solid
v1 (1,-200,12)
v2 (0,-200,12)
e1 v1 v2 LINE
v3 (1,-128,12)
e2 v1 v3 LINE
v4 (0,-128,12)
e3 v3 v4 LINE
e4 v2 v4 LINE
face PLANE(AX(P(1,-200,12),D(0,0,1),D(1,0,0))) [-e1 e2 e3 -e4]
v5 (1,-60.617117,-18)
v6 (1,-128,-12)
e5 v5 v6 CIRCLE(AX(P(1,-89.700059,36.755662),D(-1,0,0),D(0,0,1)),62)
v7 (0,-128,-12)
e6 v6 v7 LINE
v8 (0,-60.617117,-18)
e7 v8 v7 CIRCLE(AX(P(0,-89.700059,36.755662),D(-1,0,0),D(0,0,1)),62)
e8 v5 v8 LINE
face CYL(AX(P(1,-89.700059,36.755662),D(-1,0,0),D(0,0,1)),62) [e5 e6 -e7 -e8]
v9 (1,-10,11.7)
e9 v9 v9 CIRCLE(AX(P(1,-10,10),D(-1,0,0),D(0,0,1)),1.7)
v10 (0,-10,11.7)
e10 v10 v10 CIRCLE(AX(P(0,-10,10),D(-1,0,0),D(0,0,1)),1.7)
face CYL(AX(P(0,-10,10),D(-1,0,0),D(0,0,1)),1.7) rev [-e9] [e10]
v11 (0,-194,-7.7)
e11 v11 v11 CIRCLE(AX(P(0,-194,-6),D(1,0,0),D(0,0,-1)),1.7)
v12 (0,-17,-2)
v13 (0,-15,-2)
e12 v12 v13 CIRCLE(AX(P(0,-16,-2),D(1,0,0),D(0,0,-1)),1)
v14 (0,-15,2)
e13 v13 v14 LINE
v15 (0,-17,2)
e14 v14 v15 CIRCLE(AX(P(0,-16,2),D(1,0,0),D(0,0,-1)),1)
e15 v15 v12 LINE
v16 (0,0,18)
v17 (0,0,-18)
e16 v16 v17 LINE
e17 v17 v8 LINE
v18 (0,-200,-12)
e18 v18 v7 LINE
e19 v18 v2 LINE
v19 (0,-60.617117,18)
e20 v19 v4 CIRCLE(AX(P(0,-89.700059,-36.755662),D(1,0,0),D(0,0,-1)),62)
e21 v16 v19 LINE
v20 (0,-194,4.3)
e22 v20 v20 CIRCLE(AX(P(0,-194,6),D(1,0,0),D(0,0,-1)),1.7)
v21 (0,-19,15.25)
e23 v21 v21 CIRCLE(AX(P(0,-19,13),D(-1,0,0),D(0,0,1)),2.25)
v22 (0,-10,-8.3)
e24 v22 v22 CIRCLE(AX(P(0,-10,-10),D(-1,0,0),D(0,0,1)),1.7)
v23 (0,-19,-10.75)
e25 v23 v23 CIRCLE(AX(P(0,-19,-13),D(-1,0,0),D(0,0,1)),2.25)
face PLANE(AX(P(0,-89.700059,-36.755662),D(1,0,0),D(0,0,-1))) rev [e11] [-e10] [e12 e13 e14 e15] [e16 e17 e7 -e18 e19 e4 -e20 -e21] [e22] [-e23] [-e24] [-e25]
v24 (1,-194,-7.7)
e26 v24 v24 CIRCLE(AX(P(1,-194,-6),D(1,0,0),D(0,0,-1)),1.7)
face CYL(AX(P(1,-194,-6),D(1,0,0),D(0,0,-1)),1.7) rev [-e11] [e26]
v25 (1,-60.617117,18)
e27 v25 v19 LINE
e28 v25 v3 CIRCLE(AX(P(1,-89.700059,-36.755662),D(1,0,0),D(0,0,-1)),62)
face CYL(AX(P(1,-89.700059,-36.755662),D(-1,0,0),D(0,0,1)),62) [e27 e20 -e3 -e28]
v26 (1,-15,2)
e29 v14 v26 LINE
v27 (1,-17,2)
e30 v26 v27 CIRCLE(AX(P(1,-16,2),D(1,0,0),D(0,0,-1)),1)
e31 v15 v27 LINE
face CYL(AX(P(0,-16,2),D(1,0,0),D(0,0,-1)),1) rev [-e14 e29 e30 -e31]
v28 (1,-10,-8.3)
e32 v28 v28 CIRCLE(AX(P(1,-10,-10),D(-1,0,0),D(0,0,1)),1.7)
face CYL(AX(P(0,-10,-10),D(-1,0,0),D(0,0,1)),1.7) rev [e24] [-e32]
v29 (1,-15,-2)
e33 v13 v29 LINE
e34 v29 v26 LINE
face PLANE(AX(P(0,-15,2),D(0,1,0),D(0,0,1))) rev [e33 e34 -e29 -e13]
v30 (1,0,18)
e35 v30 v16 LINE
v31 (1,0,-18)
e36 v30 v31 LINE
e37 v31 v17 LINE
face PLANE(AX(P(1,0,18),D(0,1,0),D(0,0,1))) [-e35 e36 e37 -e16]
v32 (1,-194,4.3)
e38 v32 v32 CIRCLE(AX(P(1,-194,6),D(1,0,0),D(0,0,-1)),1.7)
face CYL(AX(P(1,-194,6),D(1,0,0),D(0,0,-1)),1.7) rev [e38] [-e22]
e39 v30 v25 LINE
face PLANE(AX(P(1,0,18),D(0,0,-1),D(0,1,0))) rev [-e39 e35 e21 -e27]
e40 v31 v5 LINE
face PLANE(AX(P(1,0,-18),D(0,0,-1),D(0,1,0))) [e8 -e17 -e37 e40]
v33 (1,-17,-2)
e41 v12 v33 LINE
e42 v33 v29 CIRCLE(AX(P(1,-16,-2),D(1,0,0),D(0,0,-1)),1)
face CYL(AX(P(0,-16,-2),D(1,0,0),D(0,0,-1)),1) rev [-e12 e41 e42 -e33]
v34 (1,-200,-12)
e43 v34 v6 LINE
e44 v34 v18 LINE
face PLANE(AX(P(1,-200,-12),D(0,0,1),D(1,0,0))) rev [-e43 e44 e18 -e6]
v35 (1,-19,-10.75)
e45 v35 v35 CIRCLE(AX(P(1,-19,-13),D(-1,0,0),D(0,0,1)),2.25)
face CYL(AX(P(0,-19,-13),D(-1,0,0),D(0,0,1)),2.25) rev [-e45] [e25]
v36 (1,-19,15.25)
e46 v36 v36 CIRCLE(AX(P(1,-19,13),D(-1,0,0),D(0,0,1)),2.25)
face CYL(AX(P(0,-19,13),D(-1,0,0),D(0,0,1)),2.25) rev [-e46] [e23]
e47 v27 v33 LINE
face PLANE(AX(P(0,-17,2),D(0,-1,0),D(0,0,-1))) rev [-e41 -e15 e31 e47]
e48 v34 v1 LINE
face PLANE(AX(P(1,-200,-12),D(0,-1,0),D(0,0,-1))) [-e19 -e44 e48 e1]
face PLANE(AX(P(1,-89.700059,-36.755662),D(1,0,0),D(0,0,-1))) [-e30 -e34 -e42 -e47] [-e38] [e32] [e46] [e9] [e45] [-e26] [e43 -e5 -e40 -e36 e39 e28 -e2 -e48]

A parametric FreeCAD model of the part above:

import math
import FreeCAD as App
import Part
import Sketcher

V = App.Vector

doc = App.newDocument("Part")
body = doc.addObject("PartDesign::Body", "Body")

# Sketch on YZ plane
sketch1 = body.newObject("Sketcher::SketchObject", "Sketch")
sketch1.AttachmentSupport = (doc.getObject("YZ_Plane"), [""])
sketch1.MapMode = "FlatFace"
sketch1.addGeometry([
    Part.LineSegment(V(-200, -12, 0), V(-128, -12, 0)),  # 0
    Part.ArcOfCircle(Part.Circle(V(-90, 37, 0), V(0, 0, 1), 62), math.radians(-128), math.radians(-62)),  # 1
    Part.LineSegment(V(-61, -18, 0), V(0, -18, 0)),  # 2
    Part.LineSegment(V(0, -18, 0), V(0, 18, 0)),  # 3
    Part.LineSegment(V(0, 18, 0), V(-61, 18, 0)),  # 4
    Part.ArcOfCircle(Part.Circle(V(-90, -37, 0), V(0, 0, 1), 62), math.radians(62), math.radians(128)),  # 5
    Part.LineSegment(V(-128, 12, 0), V(-200, 12, 0)),  # 6
    Part.LineSegment(V(-200, 12, 0), V(-200, -12, 0)),  # 7
], False)
sketch1.addConstraint([
    Sketcher.Constraint("Coincident", 0, 2, 1, 1),
    Sketcher.Constraint("Coincident", 1, 2, 2, 1),
    Sketcher.Constraint("Coincident", 2, 2, 3, 1),
    Sketcher.Constraint("Coincident", 3, 2, 4, 1),
    Sketcher.Constraint("Coincident", 4, 2, 5, 1),
    Sketcher.Constraint("Coincident", 5, 2, 6, 1),
    Sketcher.Constraint("Coincident", 6, 2, 7, 1),
    Sketcher.Constraint("Coincident", 7, 2, 0, 1),
    Sketcher.Constraint("Horizontal", 0),
    Sketcher.Constraint("Horizontal", 2),
    Sketcher.Constraint("Vertical", 3),
    Sketcher.Constraint("Horizontal", 4),
    Sketcher.Constraint("Horizontal", 6),
    Sketcher.Constraint("Vertical", 7),
    Sketcher.Constraint("Equal", 1, 5),
    Sketcher.Constraint("Symmetric", 2, 2, 3, 2, -1, 1),
    Sketcher.Constraint("Symmetric", 1, 3, 5, 3, -1),
    Sketcher.Constraint("Vertical", 0, 2, 5, 2),
    Sketcher.Constraint("Radius", 1, 62.0),
    Sketcher.Constraint("DistanceX", 0, 1, 0, 2, 72.0),
    Sketcher.Constraint("DistanceY", 3, 1, 3, 2, 36.0),
    Sketcher.Constraint("DistanceY", 7, 2, 7, 1, 24.0),
    Sketcher.Constraint("DistanceX", 0, 2, -1, 1, 128.0),
    Sketcher.Constraint("DistanceX", 2, 1, 2, 2, 60.617117),
])
pad1 = body.newObject("PartDesign::Pad", "Pad")
pad1.Profile = sketch1
pad1.Length = 1

# Sketch on YZ plane
sketch2 = body.newObject("Sketcher::SketchObject", "Sketch001")
sketch2.AttachmentSupport = (doc.getObject("YZ_Plane"), [""])
sketch2.MapMode = "FlatFace"
sketch2.addGeometry([
    Part.Circle(V(-10, 10, 0), V(0, 0, 1), 1.7),
    Part.Circle(V(-10, -10, 0), V(0, 0, 1), 1.7),
], False)
sketch2.addConstraint([
    Sketcher.Constraint("Equal", 0, 1),
    Sketcher.Constraint("Symmetric", 0, 3, 1, 3, -1),
    Sketcher.Constraint("Diameter", 0, 3.4),
    Sketcher.Constraint("DistanceX", 0, 3, -1, 1, 10.0),
    Sketcher.Constraint("DistanceY", -1, 1, 0, 3, 10.0),
])
doc.recompute()
hole = body.newObject("PartDesign::Hole", "Hole")
hole.Profile = sketch2
hole.ThreadType = "None"
hole.Diameter = 3.4
hole.DepthType = "ThroughAll"
hole.Reversed = True

# Sketch on YZ plane
sketch3 = body.newObject("Sketcher::SketchObject", "Sketch002")
sketch3.AttachmentSupport = (doc.getObject("YZ_Plane"), [""])
sketch3.MapMode = "FlatFace"
sketch3.addGeometry([
    Part.Circle(V(-19, -13, 0), V(0, 0, 1), 2.2),
    Part.Circle(V(-19, 13, 0), V(0, 0, 1), 2.2),
], False)
sketch3.addConstraint([
    Sketcher.Constraint("Equal", 0, 1),
    Sketcher.Constraint("Symmetric", 0, 3, 1, 3, -1),
    Sketcher.Constraint("Diameter", 0, 4.5),
    Sketcher.Constraint("DistanceX", 0, 3, -1, 1, 19.0),
    Sketcher.Constraint("DistanceY", 0, 3, -1, 1, 13.0),
])
doc.recompute()
hole2 = body.newObject("PartDesign::Hole", "Hole001")
hole2.Profile = sketch3
hole2.ThreadType = "None"
hole2.Diameter = 4.5
hole2.DepthType = "ThroughAll"
hole2.Reversed = True

# Sketch on YZ plane
sketch4 = body.newObject("Sketcher::SketchObject", "Sketch003")
sketch4.AttachmentSupport = (doc.getObject("YZ_Plane"), [""])
sketch4.MapMode = "FlatFace"
sketch4.AttachmentOffset = App.Placement(V(0, 0, 1), App.Rotation())
sketch4.addGeometry([
    Part.LineSegment(V(-15, -2, 0), V(-15, 2, 0)),
    Part.ArcOfCircle(Part.Circle(V(-16, 2, 0), V(0, 0, 1), 1), math.radians(0), math.radians(180)),
    Part.LineSegment(V(-17, 2, 0), V(-17, -2, 0)),
    Part.ArcOfCircle(Part.Circle(V(-16, -2, 0), V(0, 0, 1), 1), math.radians(180), math.radians(360)),
], False)
sketch4.addConstraint([
    Sketcher.Constraint("Tangent", 0, 2, 1, 1),
    Sketcher.Constraint("Tangent", 1, 2, 2, 1),
    Sketcher.Constraint("Tangent", 2, 2, 3, 1),
    Sketcher.Constraint("Tangent", 3, 2, 0, 1),
    Sketcher.Constraint("Vertical", 0),
    Sketcher.Constraint("Vertical", 2),
    Sketcher.Constraint("Radius", 1, 1.0),
    Sketcher.Constraint("DistanceY", 0, 1, 0, 2, 4.0),
    Sketcher.Constraint("DistanceX", 1, 3, -1, 1, 16.0),
    Sketcher.Constraint("DistanceY", -1, 1, 1, 3, 2.0),
])
pocket1 = body.newObject("PartDesign::Pocket", "Pocket")
pocket1.Profile = sketch4
pocket1.Type = "ThroughAll"

# Sketch on YZ plane
sketch5 = body.newObject("Sketcher::SketchObject", "Sketch004")
sketch5.AttachmentSupport = (doc.getObject("YZ_Plane"), [""])
sketch5.MapMode = "FlatFace"
sketch5.AttachmentOffset = App.Placement(V(0, 0, 1), App.Rotation())
sketch5.addGeometry([
    Part.Circle(V(-194, 6, 0), V(0, 0, 1), 1.7),
    Part.Circle(V(-194, -6, 0), V(0, 0, 1), 1.7),
], False)
sketch5.addConstraint([
    Sketcher.Constraint("Equal", 0, 1),
    Sketcher.Constraint("Symmetric", 0, 3, 1, 3, -1),
    Sketcher.Constraint("Diameter", 0, 3.4),
    Sketcher.Constraint("DistanceX", 0, 3, -1, 1, 194.0),
    Sketcher.Constraint("DistanceY", -1, 1, 0, 3, 6.0),
])
doc.recompute()
hole3 = body.newObject("PartDesign::Hole", "Hole002")
hole3.Profile = sketch5
hole3.ThreadType = "None"
hole3.Diameter = 3.4
hole3.DepthType = "ThroughAll"

doc.recompute()
